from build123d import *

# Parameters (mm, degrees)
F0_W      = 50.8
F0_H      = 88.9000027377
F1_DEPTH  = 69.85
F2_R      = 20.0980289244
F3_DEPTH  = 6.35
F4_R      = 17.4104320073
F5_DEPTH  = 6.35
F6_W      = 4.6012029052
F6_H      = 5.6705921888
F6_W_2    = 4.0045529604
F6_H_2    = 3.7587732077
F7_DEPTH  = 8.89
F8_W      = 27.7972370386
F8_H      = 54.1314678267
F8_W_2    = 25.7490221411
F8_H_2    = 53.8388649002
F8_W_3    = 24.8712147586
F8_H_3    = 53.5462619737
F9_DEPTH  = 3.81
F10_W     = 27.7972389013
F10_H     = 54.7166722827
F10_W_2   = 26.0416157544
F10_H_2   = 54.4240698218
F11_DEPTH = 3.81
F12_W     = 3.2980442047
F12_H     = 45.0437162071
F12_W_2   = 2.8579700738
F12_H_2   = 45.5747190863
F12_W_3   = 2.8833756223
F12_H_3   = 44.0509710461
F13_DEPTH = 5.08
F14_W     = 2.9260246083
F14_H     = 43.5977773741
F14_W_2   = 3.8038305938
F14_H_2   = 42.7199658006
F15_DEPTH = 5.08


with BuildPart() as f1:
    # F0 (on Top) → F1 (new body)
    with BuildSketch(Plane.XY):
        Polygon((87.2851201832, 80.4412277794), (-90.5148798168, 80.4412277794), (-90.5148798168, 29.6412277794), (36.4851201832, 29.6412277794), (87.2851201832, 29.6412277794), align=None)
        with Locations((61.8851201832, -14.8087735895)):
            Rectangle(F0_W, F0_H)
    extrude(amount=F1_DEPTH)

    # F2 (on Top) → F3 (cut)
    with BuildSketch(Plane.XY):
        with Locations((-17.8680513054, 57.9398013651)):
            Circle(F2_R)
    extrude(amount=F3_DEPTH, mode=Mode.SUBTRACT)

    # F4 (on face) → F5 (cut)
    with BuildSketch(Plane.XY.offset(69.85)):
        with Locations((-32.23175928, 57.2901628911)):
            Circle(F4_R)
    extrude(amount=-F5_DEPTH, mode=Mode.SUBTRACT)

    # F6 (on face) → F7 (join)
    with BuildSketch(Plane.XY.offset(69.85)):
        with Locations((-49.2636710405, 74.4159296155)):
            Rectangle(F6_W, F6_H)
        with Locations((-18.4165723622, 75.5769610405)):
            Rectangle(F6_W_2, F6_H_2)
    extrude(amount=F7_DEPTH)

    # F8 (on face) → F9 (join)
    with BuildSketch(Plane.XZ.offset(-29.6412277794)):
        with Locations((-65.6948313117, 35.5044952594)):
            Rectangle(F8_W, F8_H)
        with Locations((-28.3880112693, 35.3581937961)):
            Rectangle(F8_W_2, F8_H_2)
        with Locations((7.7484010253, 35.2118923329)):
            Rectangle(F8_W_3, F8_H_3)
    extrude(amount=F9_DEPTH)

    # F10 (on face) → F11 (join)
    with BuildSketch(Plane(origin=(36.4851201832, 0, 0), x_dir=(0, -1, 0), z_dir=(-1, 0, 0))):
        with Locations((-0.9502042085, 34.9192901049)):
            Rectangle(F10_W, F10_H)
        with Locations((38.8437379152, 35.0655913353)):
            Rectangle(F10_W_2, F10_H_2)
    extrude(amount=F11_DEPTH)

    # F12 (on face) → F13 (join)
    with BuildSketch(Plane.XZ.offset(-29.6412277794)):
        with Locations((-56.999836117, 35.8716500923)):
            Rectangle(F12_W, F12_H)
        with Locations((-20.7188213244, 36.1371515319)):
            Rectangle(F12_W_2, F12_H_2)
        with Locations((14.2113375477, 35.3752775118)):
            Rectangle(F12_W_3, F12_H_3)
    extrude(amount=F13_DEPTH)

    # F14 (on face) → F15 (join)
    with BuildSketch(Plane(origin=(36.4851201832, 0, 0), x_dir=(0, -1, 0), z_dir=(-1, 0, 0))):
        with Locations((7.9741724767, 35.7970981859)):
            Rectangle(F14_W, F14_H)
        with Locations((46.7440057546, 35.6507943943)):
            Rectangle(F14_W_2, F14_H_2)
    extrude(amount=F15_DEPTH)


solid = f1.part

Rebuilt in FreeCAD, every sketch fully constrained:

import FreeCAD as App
import Part
import Sketcher

V = App.Vector
Q = App.Units.Quantity

doc = App.newDocument("Part")
body = doc.addObject("PartDesign::Body", "Body")

# Sketch on XY plane
sketch1 = body.newObject("Sketcher::SketchObject", "Sketch")
sketch1.AttachmentSupport = (doc.getObject("XY_Plane"), [""])
sketch1.MapMode = "FlatFace"
sketch1.addGeometry(Part.LineSegment(V(87.28512, 80.441228, 0), V(-90.51488, 80.441228, 0)), False)
sketch1.addGeometry(Part.LineSegment(V(-90.51488, 80.441228, 0), V(-90.51488, 29.641228, 0)), False)
sketch1.addGeometry(Part.LineSegment(V(-90.51488, 29.641228, 0), V(36.48512, 29.641228, 0)), False)
sketch1.addGeometry(Part.LineSegment(V(36.48512, 29.641228, 0), V(36.48512, -59.258775, 0)), False)
sketch1.addGeometry(Part.LineSegment(V(36.48512, -59.258775, 0), V(87.28512, -59.258775, 0)), False)
sketch1.addGeometry(Part.LineSegment(V(87.28512, -59.258775, 0), V(87.28512, 80.441228, 0)), False)
sketch1.addConstraint(Sketcher.Constraint("Coincident", 0, 2, 1, 1))
sketch1.addConstraint(Sketcher.Constraint("Coincident", 1, 2, 2, 1))
sketch1.addConstraint(Sketcher.Constraint("Coincident", 2, 2, 3, 1))
sketch1.addConstraint(Sketcher.Constraint("Coincident", 3, 2, 4, 1))
sketch1.addConstraint(Sketcher.Constraint("Coincident", 4, 2, 5, 1))
sketch1.addConstraint(Sketcher.Constraint("Coincident", 5, 2, 0, 1))
sketch1.addConstraint(Sketcher.Constraint("Horizontal", 0))
sketch1.addConstraint(Sketcher.Constraint("Vertical", 1))
sketch1.addConstraint(Sketcher.Constraint("Horizontal", 2))
sketch1.addConstraint(Sketcher.Constraint("Vertical", 3))
sketch1.addConstraint(Sketcher.Constraint("Horizontal", 4))
sketch1.addConstraint(Sketcher.Constraint("Vertical", 5))
sketch1.addConstraint(Sketcher.Constraint("Equal", 4, 1))
sketch1.addConstraint(Sketcher.Constraint("DistanceX", 0, 2, 0, 1, Q("7 in")))
sketch1.addConstraint(Sketcher.Constraint("DistanceX", 2, 1, 2, 2, Q("5 in")))
sketch1.addConstraint(Sketcher.Constraint("DistanceY", 3, 2, 3, 1, Q("3.5000001 in")))
sketch1.addConstraint(Sketcher.Constraint("DistanceX", 0, 2, -1, 1, 90.51488))
sketch1.addConstraint(Sketcher.Constraint("DistanceY", -1, 1, 0, 2, 80.441228))
pad1 = body.newObject("PartDesign::Pad", "Pad")
pad1.Profile = sketch1
pad1.Length = Q("2.75 in")

# Sketch on XY plane
sketch2 = body.newObject("Sketcher::SketchObject", "Sketch001")
sketch2.AttachmentSupport = (doc.getObject("XY_Plane"), [""])
sketch2.MapMode = "FlatFace"
sketch2.addGeometry(Part.Circle(V(-17.868051, 57.939801, 0), V(0, 0, 1), 20.098029), False)
sketch2.addConstraint(Sketcher.Constraint("Diameter", 0, 40.196058))
sketch2.addConstraint(Sketcher.Constraint("DistanceY", -1, 1, 0, 3, 57.939801))
sketch2.addConstraint(Sketcher.Constraint("DistanceX", 0, 3, -1, 1, 17.868051))
pocket1 = body.newObject("PartDesign::Pocket", "Pocket")
pocket1.Profile = sketch2
pocket1.Length = Q("0.25 in")
pocket1.Reversed = True

# Sketch on XY plane
sketch3 = body.newObject("Sketcher::SketchObject", "Sketch002")
sketch3.AttachmentSupport = (doc.getObject("XY_Plane"), [""])
sketch3.MapMode = "FlatFace"
sketch3.AttachmentOffset = App.Placement(V(0, 0, 2.75 * 25.4), App.Rotation())
sketch3.addGeometry(Part.Circle(V(-32.231759, 57.290163, 0), V(0, 0, 1), 17.410432), False)
sketch3.addConstraint(Sketcher.Constraint("Diameter", 0, Q("1.3709002 in")))
sketch3.addConstraint(Sketcher.Constraint("DistanceX", 0, 3, -1, 1, 32.231759))
sketch3.addConstraint(Sketcher.Constraint("DistanceY", -1, 1, 0, 3, 57.290163))
pocket2 = body.newObject("PartDesign::Pocket", "Pocket001")
pocket2.Profile = sketch3
pocket2.Length = Q("0.25 in")

# Sketch on XY plane
sketch4 = body.newObject("Sketcher::SketchObject", "Sketch003")
sketch4.AttachmentSupport = (doc.getObject("XY_Plane"), [""])
sketch4.MapMode = "FlatFace"
sketch4.AttachmentOffset = App.Placement(V(0, 0, 2.75 * 25.4), App.Rotation())
sketch4.addGeometry(Part.LineSegment(V(-51.564272, 77.251226, 0), V(-51.564272, 71.580634, 0)), False)
sketch4.addGeometry(Part.LineSegment(V(-51.564272, 71.580634, 0), V(-46.96307, 71.580634, 0)), False)
sketch4.addGeometry(Part.LineSegment(V(-46.96307, 71.580634, 0), V(-46.96307, 77.251226, 0)), False)
sketch4.addGeometry(Part.LineSegment(V(-46.96307, 77.251226, 0), V(-51.564272, 77.251226, 0)), False)
sketch4.addGeometry(Part.LineSegment(V(-20.418849, 77.456348, 0), V(-20.418849, 73.697574, 0)), False)
sketch4.addGeometry(Part.LineSegment(V(-20.418849, 73.697574, 0), V(-16.414296, 73.697574, 0)), False)
sketch4.addGeometry(Part.LineSegment(V(-16.414296, 73.697574, 0), V(-16.414296, 77.456348, 0)), False)
sketch4.addGeometry(Part.LineSegment(V(-16.414296, 77.456348, 0), V(-20.418849, 77.456348, 0)), False)
sketch4.addConstraint(Sketcher.Constraint("Coincident", 0, 2, 1, 1))
sketch4.addConstraint(Sketcher.Constraint("Coincident", 1, 2, 2, 1))
sketch4.addConstraint(Sketcher.Constraint("Coincident", 2, 2, 3, 1))
sketch4.addConstraint(Sketcher.Constraint("Coincident", 3, 2, 0, 1))
sketch4.addConstraint(Sketcher.Constraint("Coincident", 4, 2, 5, 1))
sketch4.addConstraint(Sketcher.Constraint("Coincident", 5, 2, 6, 1))
sketch4.addConstraint(Sketcher.Constraint("Coincident", 6, 2, 7, 1))
sketch4.addConstraint(Sketcher.Constraint("Coincident", 7, 2, 4, 1))
sketch4.addConstraint(Sketcher.Constraint("Vertical", 0))
sketch4.addConstraint(Sketcher.Constraint("Horizontal", 1))
sketch4.addConstraint(Sketcher.Constraint("Vertical", 2))
sketch4.addConstraint(Sketcher.Constraint("Horizontal", 3))
sketch4.addConstraint(Sketcher.Constraint("Vertical", 4))
sketch4.addConstraint(Sketcher.Constraint("Horizontal", 5))
sketch4.addConstraint(Sketcher.Constraint("Vertical", 6))
sketch4.addConstraint(Sketcher.Constraint("Horizontal", 7))
sketch4.addConstraint(Sketcher.Constraint("DistanceX", 1, 1, 1, 2, 4.601203))
sketch4.addConstraint(Sketcher.Constraint("DistanceX", 5, 1, 5, 2, 4.004553))
sketch4.addConstraint(Sketcher.Constraint("DistanceY", 0, 2, 0, 1, 5.670592))
sketch4.addConstraint(Sketcher.Constraint("DistanceY", 4, 2, 4, 1, 3.758773))
sketch4.addConstraint(Sketcher.Constraint("DistanceX", 1, 2, -1, 1, 46.96307))
sketch4.addConstraint(Sketcher.Constraint("DistanceX", 4, 2, -1, 1, 20.418849))
sketch4.addConstraint(Sketcher.Constraint("DistanceY", 1, 2, 4, 2, 2.116941))
sketch4.addConstraint(Sketcher.Constraint("DistanceY", -1, 1, 0, 2, 71.580634))
pad2 = body.newObject("PartDesign::Pad", "Pad001")
pad2.Profile = sketch4
pad2.Length = Q("0.35 in")

# Sketch on XZ plane
sketch5 = body.newObject("Sketcher::SketchObject", "Sketch004")
sketch5.AttachmentSupport = (doc.getObject("XZ_Plane"), [""])
sketch5.MapMode = "FlatFace"
sketch5.AttachmentOffset = App.Placement(V(0, 0, -29.641228), App.Rotation())
sketch5.addGeometry(Part.LineSegment(V(-79.59345, 62.570229, 0), V(-79.59345, 8.438761, 0)), False)
sketch5.addGeometry(Part.LineSegment(V(-79.59345, 8.438761, 0), V(-51.796213, 8.438761, 0)), False)
sketch5.addGeometry(Part.LineSegment(V(-51.796213, 8.438761, 0), V(-51.796213, 62.570229, 0)), False)
sketch5.addGeometry(Part.LineSegment(V(-51.796213, 62.570229, 0), V(-79.59345, 62.570229, 0)), False)
sketch5.addGeometry(Part.LineSegment(V(-41.262522, 62.277626, 0), V(-41.262522, 8.438761, 0)), False)
sketch5.addGeometry(Part.LineSegment(V(-41.262522, 8.438761, 0), V(-15.5135, 8.438761, 0)), False)
sketch5.addGeometry(Part.LineSegment(V(-15.5135, 8.438761, 0), V(-15.5135, 62.277626, 0)), False)
sketch5.addGeometry(Part.LineSegment(V(-15.5135, 62.277626, 0), V(-41.262522, 62.277626, 0)), False)
sketch5.addGeometry(Part.LineSegment(V(-4.687206, 61.985023, 0), V(-4.687206, 8.438761, 0)), False)
sketch5.addGeometry(Part.LineSegment(V(-4.687206, 8.438761, 0), V(20.184008, 8.438761, 0)), False)
sketch5.addGeometry(Part.LineSegment(V(20.184008, 8.438761, 0), V(20.184008, 61.985023, 0)), False)
sketch5.addGeometry(Part.LineSegment(V(20.184008, 61.985023, 0), V(-4.687206, 61.985023, 0)), False)
sketch5.addConstraint(Sketcher.Constraint("Coincident", 0, 2, 1, 1))
sketch5.addConstraint(Sketcher.Constraint("Coincident", 1, 2, 2, 1))
sketch5.addConstraint(Sketcher.Constraint("Coincident", 2, 2, 3, 1))
sketch5.addConstraint(Sketcher.Constraint("Coincident", 3, 2, 0, 1))
sketch5.addConstraint(Sketcher.Constraint("Coincident", 4, 2, 5, 1))
sketch5.addConstraint(Sketcher.Constraint("Coincident", 5, 2, 6, 1))
sketch5.addConstraint(Sketcher.Constraint("Coincident", 6, 2, 7, 1))
sketch5.addConstraint(Sketcher.Constraint("Coincident", 7, 2, 4, 1))
sketch5.addConstraint(Sketcher.Constraint("Coincident", 8, 2, 9, 1))
sketch5.addConstraint(Sketcher.Constraint("Coincident", 9, 2, 10, 1))
sketch5.addConstraint(Sketcher.Constraint("Coincident", 10, 2, 11, 1))
sketch5.addConstraint(Sketcher.Constraint("Coincident", 11, 2, 8, 1))
sketch5.addConstraint(Sketcher.Constraint("Vertical", 0))
sketch5.addConstraint(Sketcher.Constraint("Horizontal", 1))
sketch5.addConstraint(Sketcher.Constraint("Vertical", 2))
sketch5.addConstraint(Sketcher.Constraint("Horizontal", 3))
sketch5.addConstraint(Sketcher.Constraint("Vertical", 4))
sketch5.addConstraint(Sketcher.Constraint("Horizontal", 5))
sketch5.addConstraint(Sketcher.Constraint("Vertical", 6))
sketch5.addConstraint(Sketcher.Constraint("Horizontal", 7))
sketch5.addConstraint(Sketcher.Constraint("Vertical", 8))
sketch5.addConstraint(Sketcher.Constraint("Horizontal", 9))
sketch5.addConstraint(Sketcher.Constraint("Vertical", 10))
sketch5.addConstraint(Sketcher.Constraint("Horizontal", 11))
sketch5.addConstraint(Sketcher.Constraint("Horizontal", 1, 2, 4, 2))
sketch5.addConstraint(Sketcher.Constraint("Horizontal", 5, 2, 8, 2))
sketch5.addConstraint(Sketcher.Constraint("DistanceY", 8, 2, 8, 1, 53.546262))
sketch5.addConstraint(Sketcher.Constraint("DistanceX", 5, 2, -1, 1, 15.5135))
sketch5.addConstraint(Sketcher.Constraint("DistanceX", 1, 1, 1, 2, 27.797237))
sketch5.addConstraint(Sketcher.Constraint("DistanceX", 5, 1, 5, 2, 25.749022))
sketch5.addConstraint(Sketcher.Constraint("DistanceX", 9, 1, 9, 2, 24.871215))
sketch5.addConstraint(Sketcher.Constraint("DistanceY", 0, 2, 0, 1, 54.131468))
sketch5.addConstraint(Sketcher.Constraint("DistanceY", 4, 2, 4, 1, 53.838865))
sketch5.addConstraint(Sketcher.Constraint("DistanceX", 0, 2, -1, 1, 79.59345))
sketch5.addConstraint(Sketcher.Constraint("DistanceY", -1, 1, 0, 2, 8.438761))
sketch5.addConstraint(Sketcher.Constraint("DistanceX", -1, 1, 9, 2, 20.184008))
pad3 = body.newObject("PartDesign::Pad", "Pad002")
pad3.Profile = sketch5
pad3.Length = Q("0.15 in")

# Sketch on YZ plane
sketch6 = body.newObject("Sketcher::SketchObject", "Sketch005")
sketch6.AttachmentSupport = (doc.getObject("YZ_Plane"), [""])
sketch6.MapMode = "FlatFace"
sketch6.AttachmentOffset = App.Placement(V(0, 0, 36.48512), App.Rotation())
sketch6.addGeometry(Part.LineSegment(V(14.848824, 62.277626, 0), V(14.848824, 7.560954, 0)), False)
sketch6.addGeometry(Part.LineSegment(V(14.848824, 7.560954, 0), V(-12.948415, 7.560954, 0)), False)
sketch6.addGeometry(Part.LineSegment(V(-12.948415, 7.560954, 0), V(-12.948415, 62.277626, 0)), False)
sketch6.addGeometry(Part.LineSegment(V(-12.948415, 62.277626, 0), V(14.848824, 62.277626, 0)), False)
sketch6.addGeometry(Part.LineSegment(V(-25.82293, 62.277626, 0), V(-25.82293, 7.853556, 0)), False)
sketch6.addGeometry(Part.LineSegment(V(-25.82293, 7.853556, 0), V(-51.864546, 7.853556, 0)), False)
sketch6.addGeometry(Part.LineSegment(V(-51.864546, 7.853556, 0), V(-51.864546, 62.277626, 0)), False)
sketch6.addGeometry(Part.LineSegment(V(-51.864546, 62.277626, 0), V(-25.82293, 62.277626, 0)), False)
sketch6.addConstraint(Sketcher.Constraint("Coincident", 0, 2, 1, 1))
sketch6.addConstraint(Sketcher.Constraint("Coincident", 1, 2, 2, 1))
sketch6.addConstraint(Sketcher.Constraint("Coincident", 2, 2, 3, 1))
sketch6.addConstraint(Sketcher.Constraint("Coincident", 3, 2, 0, 1))
sketch6.addConstraint(Sketcher.Constraint("Coincident", 4, 2, 5, 1))
sketch6.addConstraint(Sketcher.Constraint("Coincident", 5, 2, 6, 1))
sketch6.addConstraint(Sketcher.Constraint("Coincident", 6, 2, 7, 1))
sketch6.addConstraint(Sketcher.Constraint("Coincident", 7, 2, 4, 1))
sketch6.addConstraint(Sketcher.Constraint("Vertical", 0))
sketch6.addConstraint(Sketcher.Constraint("Horizontal", 1))
sketch6.addConstraint(Sketcher.Constraint("Vertical", 2))
sketch6.addConstraint(Sketcher.Constraint("Horizontal", 3))
sketch6.addConstraint(Sketcher.Constraint("Vertical", 4))
sketch6.addConstraint(Sketcher.Constraint("Horizontal", 5))
sketch6.addConstraint(Sketcher.Constraint("Vertical", 6))
sketch6.addConstraint(Sketcher.Constraint("Horizontal", 7))
sketch6.addConstraint(Sketcher.Constraint("Horizontal", 3, 2, 6, 2))
sketch6.addConstraint(Sketcher.Constraint("DistanceX", 1, 2, 1, 1, 27.797239))
sketch6.addConstraint(Sketcher.Constraint("DistanceY", 4, 2, 4, 1, 54.42407))
sketch6.addConstraint(Sketcher.Constraint("DistanceX", 5, 2, 5, 1, 26.041616))
sketch6.addConstraint(Sketcher.Constraint("DistanceY", 0, 2, 0, 1, 54.716672))
sketch6.addConstraint(Sketcher.Constraint("DistanceX", 4, 2, -1, 1, 25.82293))
sketch6.addConstraint(Sketcher.Constraint("DistanceX", 5, 2, 1, 2, 38.916131))
sketch6.addConstraint(Sketcher.Constraint("DistanceY", -1, 1, 0, 2, 7.560954))
pad4 = body.newObject("PartDesign::Pad", "Pad003")
pad4.Profile = sketch6
pad4.Length = Q("0.15 in")
pad4.Reversed = True

# Sketch on XZ plane
sketch7 = body.newObject("Sketcher::SketchObject", "Sketch006")
sketch7.AttachmentSupport = (doc.getObject("XZ_Plane"), [""])
sketch7.MapMode = "FlatFace"
sketch7.AttachmentOffset = App.Placement(V(0, 0, -29.641228), App.Rotation())
sketch7.addGeometry(Part.LineSegment(V(-58.648858, 58.393508, 0), V(-58.648858, 13.349792, 0)), False)
sketch7.addGeometry(Part.LineSegment(V(-58.648858, 13.349792, 0), V(-55.350814, 13.349792, 0)), False)
sketch7.addGeometry(Part.LineSegment(V(-55.350814, 13.349792, 0), V(-55.350814, 58.393508, 0)), False)
sketch7.addGeometry(Part.LineSegment(V(-55.350814, 58.393508, 0), V(-58.648858, 58.393508, 0)), False)
sketch7.addGeometry(Part.LineSegment(V(-22.147806, 58.924511, 0), V(-22.147806, 13.349792, 0)), False)
sketch7.addGeometry(Part.LineSegment(V(-22.147806, 13.349792, 0), V(-19.289836, 13.349792, 0)), False)
sketch7.addGeometry(Part.LineSegment(V(-19.289836, 13.349792, 0), V(-19.289836, 58.924511, 0)), False)
sketch7.addGeometry(Part.LineSegment(V(-19.289836, 58.924511, 0), V(-22.147806, 58.924511, 0)), False)
sketch7.addGeometry(Part.LineSegment(V(12.76965, 57.400763, 0), V(12.76965, 13.349792, 0)), False)
sketch7.addGeometry(Part.LineSegment(V(12.76965, 13.349792, 0), V(15.653025, 13.349792, 0)), False)
sketch7.addGeometry(Part.LineSegment(V(15.653025, 13.349792, 0), V(15.653025, 57.400763, 0)), False)
sketch7.addGeometry(Part.LineSegment(V(15.653025, 57.400763, 0), V(12.76965, 57.400763, 0)), False)
sketch7.addConstraint(Sketcher.Constraint("Coincident", 0, 2, 1, 1))
sketch7.addConstraint(Sketcher.Constraint("Coincident", 1, 2, 2, 1))
sketch7.addConstraint(Sketcher.Constraint("Coincident", 2, 2, 3, 1))
sketch7.addConstraint(Sketcher.Constraint("Coincident", 3, 2, 0, 1))
sketch7.addConstraint(Sketcher.Constraint("Coincident", 4, 2, 5, 1))
sketch7.addConstraint(Sketcher.Constraint("Coincident", 5, 2, 6, 1))
sketch7.addConstraint(Sketcher.Constraint("Coincident", 6, 2, 7, 1))
sketch7.addConstraint(Sketcher.Constraint("Coincident", 7, 2, 4, 1))
sketch7.addConstraint(Sketcher.Constraint("Coincident", 8, 2, 9, 1))
sketch7.addConstraint(Sketcher.Constraint("Coincident", 9, 2, 10, 1))
sketch7.addConstraint(Sketcher.Constraint("Coincident", 10, 2, 11, 1))
sketch7.addConstraint(Sketcher.Constraint("Coincident", 11, 2, 8, 1))
sketch7.addConstraint(Sketcher.Constraint("Vertical", 0))
sketch7.addConstraint(Sketcher.Constraint("Horizontal", 1))
sketch7.addConstraint(Sketcher.Constraint("Vertical", 2))
sketch7.addConstraint(Sketcher.Constraint("Horizontal", 3))
sketch7.addConstraint(Sketcher.Constraint("Vertical", 4))
sketch7.addConstraint(Sketcher.Constraint("Horizontal", 5))
sketch7.addConstraint(Sketcher.Constraint("Vertical", 6))
sketch7.addConstraint(Sketcher.Constraint("Horizontal", 7))
sketch7.addConstraint(Sketcher.Constraint("Vertical", 8))
sketch7.addConstraint(Sketcher.Constraint("Horizontal", 9))
sketch7.addConstraint(Sketcher.Constraint("Vertical", 10))
sketch7.addConstraint(Sketcher.Constraint("Horizontal", 11))
sketch7.addConstraint(Sketcher.Constraint("Horizontal", 1, 2, 4, 2))
sketch7.addConstraint(Sketcher.Constraint("Horizontal", 5, 2, 8, 2))
sketch7.addConstraint(Sketcher.Constraint("DistanceX", 5, 1, 5, 2, 2.85797))
sketch7.addConstraint(Sketcher.Constraint("DistanceY", 4, 2, 4, 1, 45.574719))
sketch7.addConstraint(Sketcher.Constraint("DistanceY", 8, 2, 8, 1, 44.050971))
sketch7.addConstraint(Sketcher.Constraint("DistanceX", 1, 1, 1, 2, 3.298044))
sketch7.addConstraint(Sketcher.Constraint("DistanceX", 9, 1, 9, 2, 2.883376))
sketch7.addConstraint(Sketcher.Constraint("DistanceY", 0, 2, 0, 1, 45.043716))
sketch7.addConstraint(Sketcher.Constraint("DistanceX", 0, 2, -1, 1, 58.648858))
sketch7.addConstraint(Sketcher.Constraint("DistanceY", -1, 1, 0, 2, 13.349792))
sketch7.addConstraint(Sketcher.Constraint("DistanceX", -1, 1, 8, 2, 12.76965))
sketch7.addConstraint(Sketcher.Constraint("DistanceX", 0, 2, 4, 2, 36.501052))
pad5 = body.newObject("PartDesign::Pad", "Pad004")
pad5.Profile = sketch7
pad5.Length = Q("0.2 in")

# Sketch on YZ plane
sketch8 = body.newObject("Sketcher::SketchObject", "Sketch007")
sketch8.AttachmentSupport = (doc.getObject("YZ_Plane"), [""])
sketch8.MapMode = "FlatFace"
sketch8.AttachmentOffset = App.Placement(V(0, 0, 36.48512), App.Rotation())
sketch8.addGeometry(Part.LineSegment(V(-6.51116, 57.595987, 0), V(-6.51116, 13.998209, 0)), False)
sketch8.addGeometry(Part.LineSegment(V(-6.51116, 13.998209, 0), V(-9.437185, 13.998209, 0)), False)
sketch8.addGeometry(Part.LineSegment(V(-9.437185, 13.998209, 0), V(-9.437185, 57.595987, 0)), False)
sketch8.addGeometry(Part.LineSegment(V(-9.437185, 57.595987, 0), V(-6.51116, 57.595987, 0)), False)
sketch8.addGeometry(Part.LineSegment(V(-44.84209, 57.010777, 0), V(-44.84209, 14.290811, 0)), False)
sketch8.addGeometry(Part.LineSegment(V(-44.84209, 14.290811, 0), V(-48.645921, 14.290811, 0)), False)
sketch8.addGeometry(Part.LineSegment(V(-48.645921, 14.290811, 0), V(-48.645921, 57.010777, 0)), False)
sketch8.addGeometry(Part.LineSegment(V(-48.645921, 57.010777, 0), V(-44.84209, 57.010777, 0)), False)
sketch8.addConstraint(Sketcher.Constraint("Coincident", 0, 2, 1, 1))
sketch8.addConstraint(Sketcher.Constraint("Coincident", 1, 2, 2, 1))
sketch8.addConstraint(Sketcher.Constraint("Coincident", 2, 2, 3, 1))
sketch8.addConstraint(Sketcher.Constraint("Coincident", 3, 2, 0, 1))
sketch8.addConstraint(Sketcher.Constraint("Coincident", 4, 2, 5, 1))
sketch8.addConstraint(Sketcher.Constraint("Coincident", 5, 2, 6, 1))
sketch8.addConstraint(Sketcher.Constraint("Coincident", 6, 2, 7, 1))
sketch8.addConstraint(Sketcher.Constraint("Coincident", 7, 2, 4, 1))
sketch8.addConstraint(Sketcher.Constraint("Vertical", 0))
sketch8.addConstraint(Sketcher.Constraint("Horizontal", 1))
sketch8.addConstraint(Sketcher.Constraint("Vertical", 2))
sketch8.addConstraint(Sketcher.Constraint("Horizontal", 3))
sketch8.addConstraint(Sketcher.Constraint("Vertical", 4))
sketch8.addConstraint(Sketcher.Constraint("Horizontal", 5))
sketch8.addConstraint(Sketcher.Constraint("Vertical", 6))
sketch8.addConstraint(Sketcher.Constraint("Horizontal", 7))
sketch8.addConstraint(Sketcher.Constraint("DistanceX", 5, 2, 5, 1, 3.803831))
sketch8.addConstraint(Sketcher.Constraint("DistanceY", 1, 2, 4, 2, 0.292602))
sketch8.addConstraint(Sketcher.Constraint("DistanceX", 1, 2, 1, 1, 2.926025))
sketch8.addConstraint(Sketcher.Constraint("DistanceY", 0, 2, 0, 1, 43.597777))
sketch8.addConstraint(Sketcher.Constraint("DistanceY", 4, 2, 4, 1, 42.719966))
sketch8.addConstraint(Sketcher.Constraint("DistanceX", 0, 2, -1, 1, 6.51116))
sketch8.addConstraint(Sketcher.Constraint("DistanceY", -1, 1, 0, 2, 13.998209))
sketch8.addConstraint(Sketcher.Constraint("DistanceX", 4, 2, -1, 1, 44.84209))
pad6 = body.newObject("PartDesign::Pad", "Pad005")
pad6.Profile = sketch8
pad6.Length = Q("0.2 in")
pad6.Reversed = True

doc.recompute()
